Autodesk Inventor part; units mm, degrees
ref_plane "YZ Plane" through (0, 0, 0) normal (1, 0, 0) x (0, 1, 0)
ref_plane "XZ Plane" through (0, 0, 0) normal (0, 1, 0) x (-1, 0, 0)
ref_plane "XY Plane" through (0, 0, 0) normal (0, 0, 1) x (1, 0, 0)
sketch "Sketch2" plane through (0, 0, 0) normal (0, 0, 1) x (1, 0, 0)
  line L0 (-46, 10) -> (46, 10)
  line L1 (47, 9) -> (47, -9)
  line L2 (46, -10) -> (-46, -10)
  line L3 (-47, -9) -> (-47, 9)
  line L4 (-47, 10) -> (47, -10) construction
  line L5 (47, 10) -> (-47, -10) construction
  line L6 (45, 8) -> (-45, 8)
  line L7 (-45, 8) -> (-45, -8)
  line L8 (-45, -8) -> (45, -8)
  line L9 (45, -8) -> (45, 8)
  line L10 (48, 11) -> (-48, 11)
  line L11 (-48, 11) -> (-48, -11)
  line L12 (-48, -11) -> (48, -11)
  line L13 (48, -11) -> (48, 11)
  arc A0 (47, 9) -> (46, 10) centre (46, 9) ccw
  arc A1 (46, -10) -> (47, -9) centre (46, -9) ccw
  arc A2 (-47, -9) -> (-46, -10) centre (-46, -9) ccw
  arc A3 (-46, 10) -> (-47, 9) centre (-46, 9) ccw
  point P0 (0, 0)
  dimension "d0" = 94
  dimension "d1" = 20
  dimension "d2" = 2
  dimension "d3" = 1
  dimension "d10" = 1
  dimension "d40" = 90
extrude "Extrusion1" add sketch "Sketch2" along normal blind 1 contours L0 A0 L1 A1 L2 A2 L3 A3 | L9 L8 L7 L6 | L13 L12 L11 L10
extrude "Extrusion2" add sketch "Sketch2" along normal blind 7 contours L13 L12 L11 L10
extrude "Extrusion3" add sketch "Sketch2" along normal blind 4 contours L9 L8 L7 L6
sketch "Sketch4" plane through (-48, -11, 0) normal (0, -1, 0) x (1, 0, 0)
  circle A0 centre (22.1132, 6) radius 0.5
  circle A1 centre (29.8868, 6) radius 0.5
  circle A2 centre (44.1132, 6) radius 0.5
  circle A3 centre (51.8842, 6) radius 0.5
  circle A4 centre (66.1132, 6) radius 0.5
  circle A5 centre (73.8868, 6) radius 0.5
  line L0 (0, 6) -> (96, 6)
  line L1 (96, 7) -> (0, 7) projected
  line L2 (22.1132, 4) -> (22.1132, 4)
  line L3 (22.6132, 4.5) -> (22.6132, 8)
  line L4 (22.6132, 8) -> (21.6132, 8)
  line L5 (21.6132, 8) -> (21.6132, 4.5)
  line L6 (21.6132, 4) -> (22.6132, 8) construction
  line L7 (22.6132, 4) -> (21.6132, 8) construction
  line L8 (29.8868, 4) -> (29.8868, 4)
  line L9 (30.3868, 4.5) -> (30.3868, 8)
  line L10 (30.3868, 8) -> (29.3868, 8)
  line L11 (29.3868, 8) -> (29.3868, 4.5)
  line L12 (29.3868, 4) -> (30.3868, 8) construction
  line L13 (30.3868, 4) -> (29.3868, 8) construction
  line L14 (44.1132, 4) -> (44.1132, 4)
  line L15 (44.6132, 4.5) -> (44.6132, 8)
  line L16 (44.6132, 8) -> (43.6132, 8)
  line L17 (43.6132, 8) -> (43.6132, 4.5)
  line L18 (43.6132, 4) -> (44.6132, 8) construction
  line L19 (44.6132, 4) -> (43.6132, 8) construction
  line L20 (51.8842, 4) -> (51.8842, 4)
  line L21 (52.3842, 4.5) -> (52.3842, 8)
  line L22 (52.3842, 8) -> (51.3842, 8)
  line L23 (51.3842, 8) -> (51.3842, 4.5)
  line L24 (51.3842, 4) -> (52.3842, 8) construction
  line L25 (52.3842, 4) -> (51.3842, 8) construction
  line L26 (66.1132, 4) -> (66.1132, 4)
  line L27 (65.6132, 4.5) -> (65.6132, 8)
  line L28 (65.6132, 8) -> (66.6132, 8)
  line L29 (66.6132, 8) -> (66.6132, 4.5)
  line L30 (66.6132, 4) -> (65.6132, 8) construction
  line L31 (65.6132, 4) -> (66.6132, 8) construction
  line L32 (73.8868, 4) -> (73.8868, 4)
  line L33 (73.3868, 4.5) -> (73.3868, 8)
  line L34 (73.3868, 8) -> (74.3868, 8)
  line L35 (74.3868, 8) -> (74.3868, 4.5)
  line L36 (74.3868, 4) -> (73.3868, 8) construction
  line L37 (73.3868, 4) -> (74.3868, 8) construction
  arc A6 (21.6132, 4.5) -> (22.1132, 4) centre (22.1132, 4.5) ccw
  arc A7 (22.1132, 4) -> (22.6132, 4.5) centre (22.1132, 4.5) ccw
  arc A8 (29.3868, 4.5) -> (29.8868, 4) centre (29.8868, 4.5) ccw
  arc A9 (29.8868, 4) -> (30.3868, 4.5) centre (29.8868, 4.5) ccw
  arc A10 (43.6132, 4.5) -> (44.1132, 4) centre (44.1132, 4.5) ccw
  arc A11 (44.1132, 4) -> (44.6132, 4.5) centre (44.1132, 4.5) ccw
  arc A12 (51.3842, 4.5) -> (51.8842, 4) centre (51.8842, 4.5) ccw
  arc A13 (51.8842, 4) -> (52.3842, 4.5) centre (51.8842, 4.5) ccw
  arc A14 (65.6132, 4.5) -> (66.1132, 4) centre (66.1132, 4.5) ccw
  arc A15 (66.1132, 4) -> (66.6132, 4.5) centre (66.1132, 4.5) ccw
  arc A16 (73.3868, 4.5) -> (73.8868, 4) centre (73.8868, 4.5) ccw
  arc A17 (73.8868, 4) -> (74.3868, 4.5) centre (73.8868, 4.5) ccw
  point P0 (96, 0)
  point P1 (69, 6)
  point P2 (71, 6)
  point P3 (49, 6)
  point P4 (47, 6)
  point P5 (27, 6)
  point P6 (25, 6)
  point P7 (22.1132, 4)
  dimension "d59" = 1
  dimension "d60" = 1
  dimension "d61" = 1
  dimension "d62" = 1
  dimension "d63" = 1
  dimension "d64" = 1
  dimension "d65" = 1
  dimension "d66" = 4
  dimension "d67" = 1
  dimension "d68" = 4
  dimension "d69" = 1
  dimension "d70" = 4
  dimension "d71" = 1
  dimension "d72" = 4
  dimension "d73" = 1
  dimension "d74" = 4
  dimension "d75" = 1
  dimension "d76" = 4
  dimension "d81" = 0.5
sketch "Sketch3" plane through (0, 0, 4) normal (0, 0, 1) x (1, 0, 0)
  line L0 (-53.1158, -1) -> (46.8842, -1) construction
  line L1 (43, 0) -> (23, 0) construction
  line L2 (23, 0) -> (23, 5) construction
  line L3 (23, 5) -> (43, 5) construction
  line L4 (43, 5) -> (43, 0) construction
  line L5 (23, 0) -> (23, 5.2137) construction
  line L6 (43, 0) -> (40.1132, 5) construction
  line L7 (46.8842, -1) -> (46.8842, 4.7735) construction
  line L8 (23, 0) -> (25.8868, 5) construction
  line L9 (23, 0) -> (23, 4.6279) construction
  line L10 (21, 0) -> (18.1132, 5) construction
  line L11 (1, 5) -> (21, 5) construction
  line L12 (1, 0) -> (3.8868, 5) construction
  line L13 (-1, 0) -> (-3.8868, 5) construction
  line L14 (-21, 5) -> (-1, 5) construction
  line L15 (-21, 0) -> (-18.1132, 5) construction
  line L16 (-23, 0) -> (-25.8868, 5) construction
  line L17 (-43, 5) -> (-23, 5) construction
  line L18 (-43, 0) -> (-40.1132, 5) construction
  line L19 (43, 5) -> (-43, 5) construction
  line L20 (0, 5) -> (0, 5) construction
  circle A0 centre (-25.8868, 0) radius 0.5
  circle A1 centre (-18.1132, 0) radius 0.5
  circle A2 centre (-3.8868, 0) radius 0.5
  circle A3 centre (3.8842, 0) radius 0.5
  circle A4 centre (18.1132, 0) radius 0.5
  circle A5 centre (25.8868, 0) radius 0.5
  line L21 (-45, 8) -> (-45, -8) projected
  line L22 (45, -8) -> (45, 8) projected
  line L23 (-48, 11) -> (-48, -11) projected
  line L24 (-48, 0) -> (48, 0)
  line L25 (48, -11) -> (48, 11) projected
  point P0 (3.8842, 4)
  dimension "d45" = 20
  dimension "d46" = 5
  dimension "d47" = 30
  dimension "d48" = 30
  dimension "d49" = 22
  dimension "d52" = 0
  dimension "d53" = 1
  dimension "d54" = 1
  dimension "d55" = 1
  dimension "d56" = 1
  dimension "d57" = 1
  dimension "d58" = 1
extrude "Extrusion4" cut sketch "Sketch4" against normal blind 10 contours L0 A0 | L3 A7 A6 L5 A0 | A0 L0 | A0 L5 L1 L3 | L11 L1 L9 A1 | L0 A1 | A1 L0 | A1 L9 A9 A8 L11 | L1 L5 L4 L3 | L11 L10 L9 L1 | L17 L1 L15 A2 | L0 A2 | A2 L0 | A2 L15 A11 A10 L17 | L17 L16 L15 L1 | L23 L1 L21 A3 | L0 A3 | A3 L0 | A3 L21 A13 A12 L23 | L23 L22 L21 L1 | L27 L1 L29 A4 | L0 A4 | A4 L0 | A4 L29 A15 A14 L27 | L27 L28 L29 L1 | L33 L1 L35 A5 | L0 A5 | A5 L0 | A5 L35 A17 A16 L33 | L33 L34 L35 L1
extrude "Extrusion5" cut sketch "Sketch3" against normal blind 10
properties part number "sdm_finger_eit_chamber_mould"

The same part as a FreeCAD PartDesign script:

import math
import FreeCAD as App
import Part
import Sketcher
from FreeCAD import Vector

doc = App.newDocument("Part")
params = doc.addObject("Spreadsheet::Sheet", "Params")
for row, (alias, value) in enumerate([
    ("sketch1_width", "96 mm"),
    ("sketch1_height", "22 mm"),
    ("pad1_length", "1 mm"),
    ("sketch2_radius", "1 mm"),
    ("pad2_length", "7 mm"),
    ("sketch3_width", "90 mm"),
    ("sketch3_height", "16 mm"),
    ("pad3_length", "4 mm"),
    ("sketch4_radius", "0.5 mm"),
    ("sketch4_height", "3.5 mm"),
    ("pocket1_length", "10 mm"),
    ("sketch5_diameter", "1 mm"),
    ("pocket2_length", "10 mm"),
], start=1):
    params.set(f"A{row}", alias)
    params.set(f"B{row}", "=" + value)
    params.setAlias(f"B{row}", alias)

body = doc.addObject("PartDesign::Body", "Body")

sketch1 = doc.addObject("Sketcher::SketchObject", "Sketch")
body.addObject(sketch1)
sketch1.AttachmentSupport = (doc.XY_Plane, [""])
sketch1.MapMode = "FlatFace"
sketch1.addGeometry(Part.LineSegment(Vector(48, -11, 0), Vector(48, 11, 0)), False)
sketch1.addGeometry(Part.LineSegment(Vector(48, 11, 0), Vector(-48, 11, 0)), False)
sketch1.addGeometry(Part.LineSegment(Vector(-48, 11, 0), Vector(-48, -11, 0)), False)
sketch1.addGeometry(Part.LineSegment(Vector(-48, -11, 0), Vector(48, -11, 0)), False)
sketch1.addConstraint(Sketcher.Constraint("Coincident", 0, 2, 1, 1))
sketch1.addConstraint(Sketcher.Constraint("Coincident", 1, 2, 2, 1))
sketch1.addConstraint(Sketcher.Constraint("Coincident", 2, 2, 3, 1))
sketch1.addConstraint(Sketcher.Constraint("Coincident", 3, 2, 0, 1))
sketch1.addConstraint(Sketcher.Constraint("Vertical", 0))
sketch1.addConstraint(Sketcher.Constraint("Horizontal", 1))
sketch1.addConstraint(Sketcher.Constraint("Vertical", 2))
sketch1.addConstraint(Sketcher.Constraint("Horizontal", 3))
sketch1.addConstraint(Sketcher.Constraint("Symmetric", 0, 2, 2, 2, -1, 1))
sketch1.addConstraint(Sketcher.Constraint("DistanceX", 1, 2, 1, 1, 96.0))
sketch1.addConstraint(Sketcher.Constraint("DistanceY", 0, 1, 0, 2, 22.0))
sketch1.setExpression("Constraints[9]", "Params.sketch1_width")
sketch1.setExpression("Constraints[10]", "Params.sketch1_height")
pad1 = doc.addObject("PartDesign::Pad", "Pad")
body.addObject(pad1)
pad1.Profile = sketch1
pad1.setExpression("Length", "Params.pad1_length")

sketch2 = doc.addObject("Sketcher::SketchObject", "Sketch001")
body.addObject(sketch2)
sketch2.AttachmentSupport = (doc.XY_Plane, [""])
sketch2.MapMode = "FlatFace"
sketch2.addGeometry(Part.LineSegment(Vector(48, -11, 0), Vector(48, 11, 0)), False)
sketch2.addGeometry(Part.LineSegment(Vector(48, 11, 0), Vector(-48, 11, 0)), False)
sketch2.addGeometry(Part.LineSegment(Vector(-48, 11, 0), Vector(-48, -11, 0)), False)
sketch2.addGeometry(Part.LineSegment(Vector(-48, -11, 0), Vector(48, -11, 0)), False)
sketch2.addGeometry(Part.ArcOfCircle(Part.Circle(Vector(-46, 9, 0), Vector(0, 0, 1), 1), math.radians(90), math.radians(180)), False)
sketch2.addGeometry(Part.LineSegment(Vector(-46, 10, 0), Vector(46, 10, 0)), False)
sketch2.addGeometry(Part.ArcOfCircle(Part.Circle(Vector(46, 9, 0), Vector(0, 0, 1), 1), math.radians(0), math.radians(90)), False)
sketch2.addGeometry(Part.LineSegment(Vector(47, 9, 0), Vector(47, -9, 0)), False)
sketch2.addGeometry(Part.ArcOfCircle(Part.Circle(Vector(46, -9, 0), Vector(0, 0, 1), 1), math.radians(-90), math.radians(0)), False)
sketch2.addGeometry(Part.LineSegment(Vector(46, -10, 0), Vector(-46, -10, 0)), False)
sketch2.addGeometry(Part.ArcOfCircle(Part.Circle(Vector(-46, -9, 0), Vector(0, 0, 1), 1), math.radians(180), math.radians(270)), False)
sketch2.addGeometry(Part.LineSegment(Vector(-47, -9, 0), Vector(-47, 9, 0)), False)
sketch2.addConstraint(Sketcher.Constraint("Coincident", 0, 2, 1, 1))
sketch2.addConstraint(Sketcher.Constraint("Coincident", 1, 2, 2, 1))
sketch2.addConstraint(Sketcher.Constraint("Coincident", 2, 2, 3, 1))
sketch2.addConstraint(Sketcher.Constraint("Coincident", 3, 2, 0, 1))
sketch2.addConstraint(Sketcher.Constraint("Tangent", 4, 1, 5, 1))
sketch2.addConstraint(Sketcher.Constraint("Tangent", 5, 2, 6, 2))
sketch2.addConstraint(Sketcher.Constraint("Tangent", 6, 1, 7, 1))
sketch2.addConstraint(Sketcher.Constraint("Tangent", 7, 2, 8, 2))
sketch2.addConstraint(Sketcher.Constraint("Tangent", 8, 1, 9, 1))
sketch2.addConstraint(Sketcher.Constraint("Tangent", 9, 2, 10, 2))
sketch2.addConstraint(Sketcher.Constraint("Tangent", 10, 1, 11, 1))
sketch2.addConstraint(Sketcher.Constraint("Tangent", 11, 2, 4, 2))
sketch2.addConstraint(Sketcher.Constraint("Vertical", 0))
sketch2.addConstraint(Sketcher.Constraint("Horizontal", 1))
sketch2.addConstraint(Sketcher.Constraint("Vertical", 2))
sketch2.addConstraint(Sketcher.Constraint("Horizontal", 3))
sketch2.addConstraint(Sketcher.Constraint("Horizontal", 5))
sketch2.addConstraint(Sketcher.Constraint("Vertical", 7))
sketch2.addConstraint(Sketcher.Constraint("Horizontal", 9))
sketch2.addConstraint(Sketcher.Constraint("Vertical", 11))
sketch2.addConstraint(Sketcher.Constraint("Equal", 4, 6))
sketch2.addConstraint(Sketcher.Constraint("Equal", 6, 8))
sketch2.addConstraint(Sketcher.Constraint("Equal", 8, 10))
sketch2.addConstraint(Sketcher.Constraint("Symmetric", 4, 3, 8, 3, -1, 1))
sketch2.addConstraint(Sketcher.Constraint("Symmetric", 0, 2, 2, 2, -1, 1))
sketch2.addConstraint(Sketcher.Constraint("Radius", 4, 1.0))
sketch2.addConstraint(Sketcher.Constraint("DistanceX", 6, 3, 0, 2, 2.0))
sketch2.addConstraint(Sketcher.Constraint("DistanceY", 6, 3, 0, 2, 2.0))
sketch2.addConstraint(Sketcher.Constraint("DistanceY", 8, 3, 0, 2, 20.0))
sketch2.addConstraint(Sketcher.Constraint("DistanceX", 4, 3, 0, 2, 94.0))
sketch2.setExpression("Constraints[25]", "Params.sketch2_radius")
pad2 = doc.addObject("PartDesign::Pad", "Pad001")
body.addObject(pad2)
pad2.Profile = sketch2
pad2.setExpression("Length", "Params.pad2_length")

sketch3 = doc.addObject("Sketcher::SketchObject", "Sketch002")
body.addObject(sketch3)
sketch3.AttachmentSupport = (doc.XY_Plane, [""])
sketch3.MapMode = "FlatFace"
sketch3.addGeometry(Part.LineSegment(Vector(45, -8, 0), Vector(45, 8, 0)), False)
sketch3.addGeometry(Part.LineSegment(Vector(45, 8, 0), Vector(-45, 8, 0)), False)
sketch3.addGeometry(Part.LineSegment(Vector(-45, 8, 0), Vector(-45, -8, 0)), False)
sketch3.addGeometry(Part.LineSegment(Vector(-45, -8, 0), Vector(45, -8, 0)), False)
sketch3.addConstraint(Sketcher.Constraint("Coincident", 0, 2, 1, 1))
sketch3.addConstraint(Sketcher.Constraint("Coincident", 1, 2, 2, 1))
sketch3.addConstraint(Sketcher.Constraint("Coincident", 2, 2, 3, 1))
sketch3.addConstraint(Sketcher.Constraint("Coincident", 3, 2, 0, 1))
sketch3.addConstraint(Sketcher.Constraint("Vertical", 0))
sketch3.addConstraint(Sketcher.Constraint("Horizontal", 1))
sketch3.addConstraint(Sketcher.Constraint("Vertical", 2))
sketch3.addConstraint(Sketcher.Constraint("Horizontal", 3))
sketch3.addConstraint(Sketcher.Constraint("Symmetric", 0, 2, 2, 2, -1, 1))
sketch3.addConstraint(Sketcher.Constraint("DistanceX", 1, 2, 1, 1, 90.0))
sketch3.addConstraint(Sketcher.Constraint("DistanceY", 0, 1, 0, 2, 16.0))
sketch3.setExpression("Constraints[9]", "Params.sketch3_width")
sketch3.setExpression("Constraints[10]", "Params.sketch3_height")
pad3 = doc.addObject("PartDesign::Pad", "Pad002")
body.addObject(pad3)
pad3.Profile = sketch3
pad3.setExpression("Length", "Params.pad3_length")

sketch4 = doc.addObject("Sketcher::SketchObject", "Sketch003")
body.addObject(sketch4)
sketch4.AttachmentSupport = (doc.XZ_Plane, [""])
sketch4.MapMode = "FlatFace"
sketch4.AttachmentOffset = App.Placement(Vector(0, 0, 11), App.Rotation())
sketch4.addGeometry(Part.LineSegment(Vector(-25.3868, 8, 0), Vector(-26.3868, 8, 0)), False)
sketch4.addGeometry(Part.LineSegment(Vector(-26.3868, 8, 0), Vector(-26.3868, 4.5, 0)), False)
sketch4.addGeometry(Part.ArcOfCircle(Part.Circle(Vector(-25.8868, 4.5, 0), Vector(0, 0, 1), 0.5), math.radians(180), math.radians(360)), False)
sketch4.addGeometry(Part.LineSegment(Vector(-25.3868, 4.5, 0), Vector(-25.3868, 8, 0)), False)
sketch4.addGeometry(Part.ArcOfCircle(Part.Circle(Vector(-18.1132, 4.5, 0), Vector(0, 0, 1), 0.5), math.radians(180), math.radians(360)), False)
sketch4.addGeometry(Part.LineSegment(Vector(-17.6132, 4.5, 0), Vector(-17.6132, 8, 0)), False)
sketch4.addGeometry(Part.LineSegment(Vector(-17.6132, 8, 0), Vector(-18.6132, 8, 0)), False)
sketch4.addGeometry(Part.LineSegment(Vector(-18.6132, 8, 0), Vector(-18.6132, 4.5, 0)), False)
sketch4.addGeometry(Part.ArcOfCircle(Part.Circle(Vector(-3.8868, 4.5, 0), Vector(0, 0, 1), 0.5), math.radians(180), math.radians(360)), False)
sketch4.addGeometry(Part.LineSegment(Vector(-3.3868, 4.5, 0), Vector(-3.3868, 8, 0)), False)
sketch4.addGeometry(Part.LineSegment(Vector(-3.3868, 8, 0), Vector(-4.3868, 8, 0)), False)
sketch4.addGeometry(Part.LineSegment(Vector(-4.3868, 8, 0), Vector(-4.3868, 4.5, 0)), False)
sketch4.addGeometry(Part.ArcOfCircle(Part.Circle(Vector(3.8842, 4.5, 0), Vector(0, 0, 1), 0.5), math.radians(180), math.radians(360)), False)
sketch4.addGeometry(Part.LineSegment(Vector(4.3842, 4.5, 0), Vector(4.3842, 8, 0)), False)
sketch4.addGeometry(Part.LineSegment(Vector(4.3842, 8, 0), Vector(3.3842, 8, 0)), False)
sketch4.addGeometry(Part.LineSegment(Vector(3.3842, 8, 0), Vector(3.3842, 4.5, 0)), False)
sketch4.addGeometry(Part.ArcOfCircle(Part.Circle(Vector(18.1132, 4.5, 0), Vector(0, 0, 1), 0.5), math.radians(180), math.radians(360)), False)
sketch4.addGeometry(Part.LineSegment(Vector(18.6132, 4.5, 0), Vector(18.6132, 8, 0)), False)
sketch4.addGeometry(Part.LineSegment(Vector(18.6132, 8, 0), Vector(17.6132, 8, 0)), False)
sketch4.addGeometry(Part.LineSegment(Vector(17.6132, 8, 0), Vector(17.6132, 4.5, 0)), False)
sketch4.addGeometry(Part.ArcOfCircle(Part.Circle(Vector(25.8868, 4.5, 0), Vector(0, 0, 1), 0.5), math.radians(180), math.radians(360)), False)
sketch4.addGeometry(Part.LineSegment(Vector(26.3868, 4.5, 0), Vector(26.3868, 8, 0)), False)
sketch4.addGeometry(Part.LineSegment(Vector(26.3868, 8, 0), Vector(25.3868, 8, 0)), False)
sketch4.addGeometry(Part.LineSegment(Vector(25.3868, 8, 0), Vector(25.3868, 4.5, 0)), False)
sketch4.addConstraint(Sketcher.Constraint("Coincident", 0, 2, 1, 1))
sketch4.addConstraint(Sketcher.Constraint("Tangent", 1, 2, 2, 1))
sketch4.addConstraint(Sketcher.Constraint("Tangent", 2, 2, 3, 1))
sketch4.addConstraint(Sketcher.Constraint("Coincident", 3, 2, 0, 1))
sketch4.addConstraint(Sketcher.Constraint("Tangent", 4, 2, 5, 1))
sketch4.addConstraint(Sketcher.Constraint("Coincident", 5, 2, 6, 1))
sketch4.addConstraint(Sketcher.Constraint("Coincident", 6, 2, 7, 1))
sketch4.addConstraint(Sketcher.Constraint("Tangent", 7, 2, 4, 1))
sketch4.addConstraint(Sketcher.Constraint("Tangent", 8, 2, 9, 1))
sketch4.addConstraint(Sketcher.Constraint("Coincident", 9, 2, 10, 1))
sketch4.addConstraint(Sketcher.Constraint("Coincident", 10, 2, 11, 1))
sketch4.addConstraint(Sketcher.Constraint("Tangent", 11, 2, 8, 1))
sketch4.addConstraint(Sketcher.Constraint("Tangent", 12, 2, 13, 1))
sketch4.addConstraint(Sketcher.Constraint("Coincident", 13, 2, 14, 1))
sketch4.addConstraint(Sketcher.Constraint("Coincident", 14, 2, 15, 1))
sketch4.addConstraint(Sketcher.Constraint("Tangent", 15, 2, 12, 1))
sketch4.addConstraint(Sketcher.Constraint("Tangent", 16, 2, 17, 1))
sketch4.addConstraint(Sketcher.Constraint("Coincident", 17, 2, 18, 1))
sketch4.addConstraint(Sketcher.Constraint("Coincident", 18, 2, 19, 1))
sketch4.addConstraint(Sketcher.Constraint("Tangent", 19, 2, 16, 1))
sketch4.addConstraint(Sketcher.Constraint("Tangent", 20, 2, 21, 1))
sketch4.addConstraint(Sketcher.Constraint("Coincident", 21, 2, 22, 1))
sketch4.addConstraint(Sketcher.Constraint("Coincident", 22, 2, 23, 1))
sketch4.addConstraint(Sketcher.Constraint("Tangent", 23, 2, 20, 1))
sketch4.addConstraint(Sketcher.Constraint("Horizontal", 0))
sketch4.addConstraint(Sketcher.Constraint("Vertical", 1))
sketch4.addConstraint(Sketcher.Constraint("Vertical", 3))
sketch4.addConstraint(Sketcher.Constraint("Vertical", 5))
sketch4.addConstraint(Sketcher.Constraint("Horizontal", 6))
sketch4.addConstraint(Sketcher.Constraint("Vertical", 7))
sketch4.addConstraint(Sketcher.Constraint("Vertical", 9))
sketch4.addConstraint(Sketcher.Constraint("Horizontal", 10))
sketch4.addConstraint(Sketcher.Constraint("Vertical", 11))
sketch4.addConstraint(Sketcher.Constraint("Vertical", 13))
sketch4.addConstraint(Sketcher.Constraint("Horizontal", 14))
sketch4.addConstraint(Sketcher.Constraint("Vertical", 15))
sketch4.addConstraint(Sketcher.Constraint("Vertical", 17))
sketch4.addConstraint(Sketcher.Constraint("Horizontal", 18))
sketch4.addConstraint(Sketcher.Constraint("Vertical", 19))
sketch4.addConstraint(Sketcher.Constraint("Vertical", 21))
sketch4.addConstraint(Sketcher.Constraint("Horizontal", 22))
sketch4.addConstraint(Sketcher.Constraint("Vertical", 23))
sketch4.addConstraint(Sketcher.Constraint("Equal", 2, 4))
sketch4.addConstraint(Sketcher.Constraint("Equal", 4, 8))
sketch4.addConstraint(Sketcher.Constraint("Equal", 8, 12))
sketch4.addConstraint(Sketcher.Constraint("Equal", 12, 16))
sketch4.addConstraint(Sketcher.Constraint("Equal", 16, 20))
sketch4.addConstraint(Sketcher.Constraint("Symmetric", 4, 3, 16, 3, -2))
sketch4.addConstraint(Sketcher.Constraint("Symmetric", 2, 3, 20, 3, -2))
sketch4.addConstraint(Sketcher.Constraint("Horizontal", 2, 3, 4, 3))
sketch4.addConstraint(Sketcher.Constraint("Horizontal", 4, 3, 8, 3))
sketch4.addConstraint(Sketcher.Constraint("Horizontal", 8, 3, 12, 3))
sketch4.addConstraint(Sketcher.Constraint("Horizontal", 3, 2, 5, 2))
sketch4.addConstraint(Sketcher.Constraint("Horizontal", 6, 2, 9, 2))
sketch4.addConstraint(Sketcher.Constraint("Horizontal", 10, 2, 13, 2))
sketch4.addConstraint(Sketcher.Constraint("Horizontal", 14, 2, 17, 2))
sketch4.addConstraint(Sketcher.Constraint("Horizontal", 18, 2, 21, 2))
sketch4.addConstraint(Sketcher.Constraint("Radius", 2, 0.5))
sketch4.addConstraint(Sketcher.Constraint("DistanceY", 1, 2, 1, 1, 3.5))
sketch4.addConstraint(Sketcher.Constraint("DistanceY", -1, 1, 0, 2, 8.0))
sketch4.addConstraint(Sketcher.Constraint("DistanceX", 2, 3, 8, 3, 22.0))
sketch4.addConstraint(Sketcher.Constraint("DistanceX", 8, 3, 16, 3, 22.0))
sketch4.addConstraint(Sketcher.Constraint("DistanceX", 8, 3, 12, 3, 7.771))
sketch4.addConstraint(Sketcher.Constraint("DistanceX", 2, 3, -1, 1, 25.8868))
sketch4.setExpression("Constraints[57]", "Params.sketch4_radius")
sketch4.setExpression("Constraints[58]", "Params.sketch4_height")
pocket1 = doc.addObject("PartDesign::Pocket", "Pocket")
body.addObject(pocket1)
pocket1.Profile = sketch4
pocket1.setExpression("Length", "Params.pocket1_length")

sketch5 = doc.addObject("Sketcher::SketchObject", "Sketch004")
body.addObject(sketch5)
sketch5.AttachmentSupport = (doc.XY_Plane, [""])
sketch5.MapMode = "FlatFace"
sketch5.AttachmentOffset = App.Placement(Vector(0, 0, 4), App.Rotation())
sketch5.addGeometry(Part.Circle(Vector(-25.8868, 0, 0), Vector(0, 0, 1), 0.5), False)
sketch5.addGeometry(Part.Circle(Vector(25.8868, 0, 0), Vector(0, 0, 1), 0.5), False)
sketch5.addGeometry(Part.Circle(Vector(18.1132, 0, 0), Vector(0, 0, 1), 0.5), False)
sketch5.addGeometry(Part.Circle(Vector(3.8842, 0, 0), Vector(0, 0, 1), 0.5), False)
sketch5.addGeometry(Part.Circle(Vector(-3.8868, 0, 0), Vector(0, 0, 1), 0.5), False)
sketch5.addGeometry(Part.Circle(Vector(-18.1132, 0, 0), Vector(0, 0, 1), 0.5), False)
sketch5.addConstraint(Sketcher.Constraint("Equal", 0, 1))
sketch5.addConstraint(Sketcher.Constraint("Equal", 1, 2))
sketch5.addConstraint(Sketcher.Constraint("Equal", 2, 3))
sketch5.addConstraint(Sketcher.Constraint("Equal", 3, 4))
sketch5.addConstraint(Sketcher.Constraint("Equal", 4, 5))
sketch5.addConstraint(Sketcher.Constraint("Symmetric", 0, 3, 1, 3, -1, 1))
sketch5.addConstraint(Sketcher.Constraint("Symmetric", 2, 3, 5, 3, -1, 1))
sketch5.addConstraint(Sketcher.Constraint("PointOnObject", 0, 3, -1))
sketch5.addConstraint(Sketcher.Constraint("PointOnObject", 2, 3, -1))
sketch5.addConstraint(Sketcher.Constraint("PointOnObject", 3, 3, -1))
sketch5.addConstraint(Sketcher.Constraint("PointOnObject", 4, 3, -1))
sketch5.addConstraint(Sketcher.Constraint("Diameter", 0, 1.0))
sketch5.addConstraint(Sketcher.Constraint("DistanceX", 0, 3, 4, 3, 22.0))
sketch5.addConstraint(Sketcher.Constraint("DistanceX", 4, 3, 2, 3, 22.0))
sketch5.addConstraint(Sketcher.Constraint("DistanceX", 3, 3, 2, 3, 14.229))
sketch5.addConstraint(Sketcher.Constraint("DistanceX", 0, 3, -1, 1, 25.8868))
sketch5.setExpression("Constraints[11]", "Params.sketch5_diameter")
pocket2 = doc.addObject("PartDesign::Pocket", "Pocket001")
body.addObject(pocket2)
pocket2.Profile = sketch5
pocket2.setExpression("Length", "Params.pocket2_length")

doc.recompute()
